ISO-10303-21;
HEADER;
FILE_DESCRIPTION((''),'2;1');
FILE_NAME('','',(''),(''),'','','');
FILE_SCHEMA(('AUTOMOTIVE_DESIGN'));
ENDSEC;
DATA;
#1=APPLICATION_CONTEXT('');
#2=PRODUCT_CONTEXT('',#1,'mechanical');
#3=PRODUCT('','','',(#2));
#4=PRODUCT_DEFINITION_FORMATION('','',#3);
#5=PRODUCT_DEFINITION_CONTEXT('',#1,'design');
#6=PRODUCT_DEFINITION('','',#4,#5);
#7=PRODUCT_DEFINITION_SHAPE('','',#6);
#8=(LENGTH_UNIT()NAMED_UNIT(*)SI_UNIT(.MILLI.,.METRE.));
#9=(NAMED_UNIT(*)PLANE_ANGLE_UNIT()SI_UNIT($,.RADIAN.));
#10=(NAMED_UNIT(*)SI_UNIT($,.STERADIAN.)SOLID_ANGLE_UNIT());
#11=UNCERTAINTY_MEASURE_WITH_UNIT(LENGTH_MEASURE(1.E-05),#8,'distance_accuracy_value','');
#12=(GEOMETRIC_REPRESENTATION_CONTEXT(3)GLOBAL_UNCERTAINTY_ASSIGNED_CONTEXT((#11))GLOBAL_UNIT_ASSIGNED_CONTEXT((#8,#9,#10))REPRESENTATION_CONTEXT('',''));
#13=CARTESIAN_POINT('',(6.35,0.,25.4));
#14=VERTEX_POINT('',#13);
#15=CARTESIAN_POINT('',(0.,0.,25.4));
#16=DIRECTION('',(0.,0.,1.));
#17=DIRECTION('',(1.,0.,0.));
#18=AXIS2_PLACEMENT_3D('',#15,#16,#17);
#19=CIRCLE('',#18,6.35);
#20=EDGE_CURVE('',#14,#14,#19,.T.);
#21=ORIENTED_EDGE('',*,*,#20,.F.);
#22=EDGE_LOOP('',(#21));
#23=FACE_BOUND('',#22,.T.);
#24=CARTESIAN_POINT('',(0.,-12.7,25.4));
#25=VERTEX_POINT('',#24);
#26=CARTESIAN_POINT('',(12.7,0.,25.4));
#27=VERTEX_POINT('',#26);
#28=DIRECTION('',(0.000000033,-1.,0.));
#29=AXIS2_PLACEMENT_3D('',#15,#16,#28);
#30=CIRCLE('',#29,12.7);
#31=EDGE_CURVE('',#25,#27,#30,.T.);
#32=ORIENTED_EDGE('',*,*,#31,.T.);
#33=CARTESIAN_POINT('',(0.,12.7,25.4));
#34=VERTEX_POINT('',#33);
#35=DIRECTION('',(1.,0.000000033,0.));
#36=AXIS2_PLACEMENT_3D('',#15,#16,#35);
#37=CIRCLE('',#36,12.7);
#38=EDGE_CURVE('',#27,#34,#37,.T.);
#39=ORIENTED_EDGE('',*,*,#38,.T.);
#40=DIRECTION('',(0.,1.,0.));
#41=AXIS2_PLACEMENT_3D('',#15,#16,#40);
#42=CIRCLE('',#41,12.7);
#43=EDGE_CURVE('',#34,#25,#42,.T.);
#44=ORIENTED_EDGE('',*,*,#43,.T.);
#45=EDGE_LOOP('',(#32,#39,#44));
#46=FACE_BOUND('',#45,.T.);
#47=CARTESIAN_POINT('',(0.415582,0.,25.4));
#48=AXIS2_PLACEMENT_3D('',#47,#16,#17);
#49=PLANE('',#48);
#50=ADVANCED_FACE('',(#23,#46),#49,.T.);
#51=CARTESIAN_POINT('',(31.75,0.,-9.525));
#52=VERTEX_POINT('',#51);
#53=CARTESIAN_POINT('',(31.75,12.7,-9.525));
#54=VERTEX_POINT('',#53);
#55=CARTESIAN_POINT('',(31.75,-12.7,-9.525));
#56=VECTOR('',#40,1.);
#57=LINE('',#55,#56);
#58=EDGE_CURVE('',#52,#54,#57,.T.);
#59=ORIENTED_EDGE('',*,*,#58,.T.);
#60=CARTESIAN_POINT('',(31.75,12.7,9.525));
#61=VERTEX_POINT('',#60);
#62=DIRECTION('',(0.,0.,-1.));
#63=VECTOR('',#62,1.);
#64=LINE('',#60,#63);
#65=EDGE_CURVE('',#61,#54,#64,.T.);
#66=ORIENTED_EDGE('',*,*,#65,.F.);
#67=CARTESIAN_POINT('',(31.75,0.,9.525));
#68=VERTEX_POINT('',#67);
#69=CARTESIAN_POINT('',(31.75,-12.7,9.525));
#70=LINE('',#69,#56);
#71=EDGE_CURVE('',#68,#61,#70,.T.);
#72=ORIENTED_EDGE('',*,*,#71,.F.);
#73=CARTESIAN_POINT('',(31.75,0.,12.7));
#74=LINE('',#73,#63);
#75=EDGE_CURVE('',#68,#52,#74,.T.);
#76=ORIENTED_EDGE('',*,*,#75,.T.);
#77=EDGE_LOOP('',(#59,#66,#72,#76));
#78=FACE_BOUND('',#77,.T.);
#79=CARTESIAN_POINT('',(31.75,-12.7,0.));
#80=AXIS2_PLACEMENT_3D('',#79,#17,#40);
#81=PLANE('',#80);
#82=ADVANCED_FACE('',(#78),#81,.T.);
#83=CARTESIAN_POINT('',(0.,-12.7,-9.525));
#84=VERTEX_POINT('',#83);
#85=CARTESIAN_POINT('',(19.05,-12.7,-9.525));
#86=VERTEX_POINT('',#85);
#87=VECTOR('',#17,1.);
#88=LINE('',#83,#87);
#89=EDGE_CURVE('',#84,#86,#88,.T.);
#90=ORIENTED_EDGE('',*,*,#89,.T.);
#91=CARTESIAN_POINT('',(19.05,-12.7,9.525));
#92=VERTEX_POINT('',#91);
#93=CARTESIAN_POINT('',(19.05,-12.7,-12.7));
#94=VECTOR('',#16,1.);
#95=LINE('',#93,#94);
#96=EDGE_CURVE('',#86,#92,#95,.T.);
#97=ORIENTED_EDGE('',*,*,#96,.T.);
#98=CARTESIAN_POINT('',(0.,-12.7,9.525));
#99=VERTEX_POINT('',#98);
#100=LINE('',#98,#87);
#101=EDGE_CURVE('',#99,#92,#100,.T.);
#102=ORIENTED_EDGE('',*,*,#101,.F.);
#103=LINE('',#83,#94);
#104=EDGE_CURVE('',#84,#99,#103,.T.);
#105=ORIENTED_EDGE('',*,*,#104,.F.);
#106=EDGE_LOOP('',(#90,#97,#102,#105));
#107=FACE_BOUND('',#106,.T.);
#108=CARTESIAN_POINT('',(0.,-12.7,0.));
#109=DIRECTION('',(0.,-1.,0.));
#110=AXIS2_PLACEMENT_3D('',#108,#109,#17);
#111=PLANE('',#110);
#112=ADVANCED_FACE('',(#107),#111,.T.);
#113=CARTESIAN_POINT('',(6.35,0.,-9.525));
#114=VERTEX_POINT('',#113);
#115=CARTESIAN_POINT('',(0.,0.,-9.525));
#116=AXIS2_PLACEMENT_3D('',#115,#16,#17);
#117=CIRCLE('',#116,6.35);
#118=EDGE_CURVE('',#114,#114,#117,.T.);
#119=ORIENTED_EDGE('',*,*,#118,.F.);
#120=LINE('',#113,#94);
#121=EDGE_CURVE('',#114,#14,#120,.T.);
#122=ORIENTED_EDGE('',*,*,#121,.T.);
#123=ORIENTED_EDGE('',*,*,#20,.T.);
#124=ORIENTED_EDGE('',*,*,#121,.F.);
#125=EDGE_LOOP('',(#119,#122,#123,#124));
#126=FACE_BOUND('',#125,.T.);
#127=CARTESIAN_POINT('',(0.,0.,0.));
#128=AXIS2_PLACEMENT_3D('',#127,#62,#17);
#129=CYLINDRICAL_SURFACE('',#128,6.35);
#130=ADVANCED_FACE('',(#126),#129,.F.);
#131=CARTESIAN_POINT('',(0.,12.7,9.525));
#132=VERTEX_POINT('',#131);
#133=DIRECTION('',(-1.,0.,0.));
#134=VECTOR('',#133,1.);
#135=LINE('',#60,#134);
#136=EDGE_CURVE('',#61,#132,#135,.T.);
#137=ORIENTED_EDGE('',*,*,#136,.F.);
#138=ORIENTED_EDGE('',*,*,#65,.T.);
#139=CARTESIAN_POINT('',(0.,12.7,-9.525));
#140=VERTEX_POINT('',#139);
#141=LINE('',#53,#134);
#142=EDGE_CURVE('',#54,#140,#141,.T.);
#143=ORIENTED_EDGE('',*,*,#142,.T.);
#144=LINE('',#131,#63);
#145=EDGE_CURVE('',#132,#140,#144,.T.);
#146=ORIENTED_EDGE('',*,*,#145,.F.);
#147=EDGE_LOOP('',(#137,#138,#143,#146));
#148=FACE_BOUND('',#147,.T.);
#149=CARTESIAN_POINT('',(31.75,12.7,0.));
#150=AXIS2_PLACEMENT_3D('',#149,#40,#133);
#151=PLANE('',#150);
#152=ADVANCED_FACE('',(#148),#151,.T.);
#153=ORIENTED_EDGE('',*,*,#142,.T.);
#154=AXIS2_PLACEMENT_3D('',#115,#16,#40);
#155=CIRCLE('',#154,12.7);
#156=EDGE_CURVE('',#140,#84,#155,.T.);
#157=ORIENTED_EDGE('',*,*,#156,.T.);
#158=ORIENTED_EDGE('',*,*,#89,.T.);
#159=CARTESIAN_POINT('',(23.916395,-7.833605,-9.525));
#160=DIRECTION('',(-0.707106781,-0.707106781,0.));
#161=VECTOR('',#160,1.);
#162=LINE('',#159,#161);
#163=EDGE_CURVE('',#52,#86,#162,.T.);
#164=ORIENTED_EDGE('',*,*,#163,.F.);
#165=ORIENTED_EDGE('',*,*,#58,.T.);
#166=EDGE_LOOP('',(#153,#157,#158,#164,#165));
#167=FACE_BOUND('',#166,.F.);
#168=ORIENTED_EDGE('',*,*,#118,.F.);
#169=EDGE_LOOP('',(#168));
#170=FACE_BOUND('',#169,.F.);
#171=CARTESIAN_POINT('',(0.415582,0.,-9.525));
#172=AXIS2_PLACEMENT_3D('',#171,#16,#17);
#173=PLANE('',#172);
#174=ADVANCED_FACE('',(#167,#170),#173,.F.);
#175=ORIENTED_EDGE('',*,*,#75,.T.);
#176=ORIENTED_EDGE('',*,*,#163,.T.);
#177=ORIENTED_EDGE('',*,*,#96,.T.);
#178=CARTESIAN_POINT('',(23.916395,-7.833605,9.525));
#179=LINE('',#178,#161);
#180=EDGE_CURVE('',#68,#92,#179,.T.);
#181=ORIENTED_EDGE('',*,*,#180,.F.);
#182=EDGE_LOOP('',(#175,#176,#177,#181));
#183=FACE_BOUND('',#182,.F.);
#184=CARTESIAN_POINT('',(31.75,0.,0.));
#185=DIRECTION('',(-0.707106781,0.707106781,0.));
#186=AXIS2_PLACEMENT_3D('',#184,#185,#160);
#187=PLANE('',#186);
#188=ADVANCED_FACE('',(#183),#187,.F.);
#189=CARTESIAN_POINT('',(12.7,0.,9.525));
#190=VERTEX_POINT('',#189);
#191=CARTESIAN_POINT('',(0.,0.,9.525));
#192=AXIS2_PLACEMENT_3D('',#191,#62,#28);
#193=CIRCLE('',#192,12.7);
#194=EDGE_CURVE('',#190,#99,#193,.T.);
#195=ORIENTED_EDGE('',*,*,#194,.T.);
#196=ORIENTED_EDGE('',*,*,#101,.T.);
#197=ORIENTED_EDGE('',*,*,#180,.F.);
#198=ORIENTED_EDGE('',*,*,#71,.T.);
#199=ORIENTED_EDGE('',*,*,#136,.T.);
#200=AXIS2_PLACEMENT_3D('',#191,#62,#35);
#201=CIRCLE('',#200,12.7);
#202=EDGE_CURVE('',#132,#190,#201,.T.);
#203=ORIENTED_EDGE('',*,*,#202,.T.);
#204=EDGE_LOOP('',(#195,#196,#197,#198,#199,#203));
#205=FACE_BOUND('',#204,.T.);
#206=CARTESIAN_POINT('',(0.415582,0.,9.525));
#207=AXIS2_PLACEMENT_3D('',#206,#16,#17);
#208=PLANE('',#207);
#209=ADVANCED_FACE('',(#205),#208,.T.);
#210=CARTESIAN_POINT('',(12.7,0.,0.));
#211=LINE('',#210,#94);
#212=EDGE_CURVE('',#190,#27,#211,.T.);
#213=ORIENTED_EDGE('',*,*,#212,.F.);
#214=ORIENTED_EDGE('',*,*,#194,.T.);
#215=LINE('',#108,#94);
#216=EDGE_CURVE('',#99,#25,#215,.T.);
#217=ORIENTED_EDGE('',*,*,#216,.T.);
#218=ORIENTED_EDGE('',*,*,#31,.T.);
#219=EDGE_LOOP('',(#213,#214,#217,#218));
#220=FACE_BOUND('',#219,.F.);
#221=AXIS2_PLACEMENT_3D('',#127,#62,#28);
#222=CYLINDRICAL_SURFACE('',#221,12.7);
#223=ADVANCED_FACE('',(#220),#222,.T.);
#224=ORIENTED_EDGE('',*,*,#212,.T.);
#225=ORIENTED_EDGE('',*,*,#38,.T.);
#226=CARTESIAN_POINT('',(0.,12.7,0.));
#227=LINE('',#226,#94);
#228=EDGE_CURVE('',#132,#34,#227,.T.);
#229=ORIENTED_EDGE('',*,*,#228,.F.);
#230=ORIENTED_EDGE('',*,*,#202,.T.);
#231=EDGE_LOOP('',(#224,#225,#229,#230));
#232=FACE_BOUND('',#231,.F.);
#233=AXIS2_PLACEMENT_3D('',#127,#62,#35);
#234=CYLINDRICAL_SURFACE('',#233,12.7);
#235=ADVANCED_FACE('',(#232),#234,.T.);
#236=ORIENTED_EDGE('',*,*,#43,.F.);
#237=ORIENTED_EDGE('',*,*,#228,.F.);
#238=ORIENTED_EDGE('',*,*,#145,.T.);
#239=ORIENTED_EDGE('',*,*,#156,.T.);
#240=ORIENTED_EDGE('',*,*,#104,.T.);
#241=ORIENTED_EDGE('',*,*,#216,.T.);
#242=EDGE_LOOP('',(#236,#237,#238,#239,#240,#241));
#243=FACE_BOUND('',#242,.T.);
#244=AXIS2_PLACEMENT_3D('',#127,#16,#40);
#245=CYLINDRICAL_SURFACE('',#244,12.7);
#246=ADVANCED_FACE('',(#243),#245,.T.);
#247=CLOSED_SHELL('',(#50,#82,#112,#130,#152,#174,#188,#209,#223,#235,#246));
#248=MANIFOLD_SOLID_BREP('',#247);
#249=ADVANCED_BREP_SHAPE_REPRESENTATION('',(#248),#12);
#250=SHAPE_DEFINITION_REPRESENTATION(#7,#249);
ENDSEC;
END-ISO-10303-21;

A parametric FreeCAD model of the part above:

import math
import FreeCAD as App
import Part
import Sketcher
from FreeCAD import Vector
Q = App.Units.Quantity

doc = App.newDocument("Part")
body = doc.addObject("PartDesign::Body", "Body")

sketch1 = doc.addObject("Sketcher::SketchObject", "Sketch")
body.addObject(sketch1)
sketch1.AttachmentSupport = (doc.XY_Plane, [""])
sketch1.MapMode = "FlatFace"
sketch1.addGeometry([
    Part.ArcOfCircle(Part.Circle(Vector(0, 0, 0), Vector(0, 0, 1), 13), math.radians(-90), math.radians(0)),
    Part.ArcOfCircle(Part.Circle(Vector(0, 0, 0), Vector(0, 0, 1), 13), math.radians(0), math.radians(90)),
    Part.ArcOfCircle(Part.Circle(Vector(0, 0, 0), Vector(0, 0, 1), 13), math.radians(90), math.radians(270)),
    Part.Circle(Vector(0, 0, 0), Vector(0, 0, 1), 6),
], False)
sketch1.addConstraint([
    Sketcher.Constraint("Tangent", 0, 2, 1, 1),
    Sketcher.Constraint("Tangent", 1, 2, 2, 1),
    Sketcher.Constraint("Tangent", 2, 2, 0, 1),
    Sketcher.Constraint("Coincident", 0, 3, -1, 1),
    Sketcher.Constraint("Coincident", 3, 3, -1, 1),
    Sketcher.Constraint("PointOnObject", 0, 2, -1),
    Sketcher.Constraint("PointOnObject", 1, 2, -2),
    Sketcher.Constraint("PointOnObject", 2, 2, -2),
    Sketcher.Constraint("Diameter", 3, Q("0.5 in")),
    Sketcher.Constraint("Radius", 0, Q("0.5 in")),
])
pad1 = doc.addObject("PartDesign::Pad", "Pad")
body.addObject(pad1)
pad1.Profile = sketch1
pad1.Length = Q("1 in")

sketch2 = doc.addObject("Sketcher::SketchObject", "Sketch001")
body.addObject(sketch2)
sketch2.AttachmentSupport = (doc.XY_Plane, [""])
sketch2.MapMode = "FlatFace"
sketch2.addGeometry([
    Part.ArcOfCircle(Part.Circle(Vector(0, 0, 0), Vector(0, 0, 1), 13), math.radians(90), math.radians(270)),
    Part.LineSegment(Vector(0, -13, 0), Vector(32, -13, 0)),
    Part.LineSegment(Vector(32, -13, 0), Vector(32, 13, 0)),
    Part.LineSegment(Vector(32, 13, 0), Vector(0, 13, 0)),
    Part.Circle(Vector(0, 0, 0), Vector(0, 0, 1), 6),
], False)
sketch2.addConstraint([
    Sketcher.Constraint("Tangent", 0, 2, 1, 1),
    Sketcher.Constraint("Coincident", 1, 2, 2, 1),
    Sketcher.Constraint("Coincident", 2, 2, 3, 1),
    Sketcher.Constraint("Tangent", 3, 2, 0, 1),
    Sketcher.Constraint("Horizontal", 1),
    Sketcher.Constraint("Vertical", 2),
    Sketcher.Constraint("Horizontal", 3),
    Sketcher.Constraint("Coincident", 0, 3, -1, 1),
    Sketcher.Constraint("Coincident", 4, 3, -1, 1),
    Sketcher.Constraint("Diameter", 4, Q("0.5 in")),
    Sketcher.Constraint("Radius", 0, Q("0.5 in")),
    Sketcher.Constraint("DistanceX", 1, 1, 1, 2, Q("1.25 in")),
])
pad2 = doc.addObject("PartDesign::Pad", "Pad001")
body.addObject(pad2)
pad2.Profile = sketch2
pad2.Length = Q("0.75 in")
pad2.Midplane = True

sketch3 = doc.addObject("Sketcher::SketchObject", "Sketch002")
body.addObject(sketch3)
sketch3.AttachmentSupport = (doc.XY_Plane, [""])
sketch3.MapMode = "FlatFace"
sketch3.addGeometry([
    Part.LineSegment(Vector(32, 0, 0), Vector(19, -13, 0)),
    Part.LineSegment(Vector(19, -13, 0), Vector(32, -13, 0)),
    Part.LineSegment(Vector(32, -13, 0), Vector(32, 0, 0)),
], False)
sketch3.addConstraint([
    Sketcher.Constraint("Coincident", 0, 2, 1, 1),
    Sketcher.Constraint("Coincident", 1, 2, 2, 1),
    Sketcher.Constraint("Coincident", 2, 2, 0, 1),
    Sketcher.Constraint("Horizontal", 1),
    Sketcher.Constraint("Vertical", 2),
    Sketcher.Constraint("PointOnObject", 2, 2, -1),
    Sketcher.Constraint("Equal", 1, 2),
    Sketcher.Constraint("DistanceX", 1, 1, 1, 2, Q("0.5 in")),
    Sketcher.Constraint("DistanceX", -1, 1, 0, 2, Q("0.75 in")),
])
pocket1 = doc.addObject("PartDesign::Pocket", "Pocket")
body.addObject(pocket1)
pocket1.Profile = sketch3
pocket1.Length = Q("1 in")
pocket1.Midplane = True

doc.recompute()
